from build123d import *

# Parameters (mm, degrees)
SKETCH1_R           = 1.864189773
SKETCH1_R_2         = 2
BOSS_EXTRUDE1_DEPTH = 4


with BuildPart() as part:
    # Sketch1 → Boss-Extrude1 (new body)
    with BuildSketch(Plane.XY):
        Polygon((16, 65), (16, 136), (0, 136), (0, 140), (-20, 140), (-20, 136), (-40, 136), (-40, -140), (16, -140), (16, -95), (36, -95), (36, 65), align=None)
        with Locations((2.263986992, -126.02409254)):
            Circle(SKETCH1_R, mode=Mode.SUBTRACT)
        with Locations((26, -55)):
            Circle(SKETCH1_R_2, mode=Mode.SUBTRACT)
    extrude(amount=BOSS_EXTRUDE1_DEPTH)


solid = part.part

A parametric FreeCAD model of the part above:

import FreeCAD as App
import Part
import Sketcher

V = App.Vector

doc = App.newDocument("Part")
body = doc.addObject("PartDesign::Body", "Body")

sketch1 = body.newObject("Sketcher::SketchObject", "Sketch")
sketch1.AttachmentSupport = (doc.getObject("XY_Plane"), [""])
sketch1.MapMode = "FlatFace"
sketch1.addGeometry(Part.LineSegment(V(16, 65, 0), V(16, 136, 0)), False)
sketch1.addGeometry(Part.LineSegment(V(16, 136, 0), V(0, 136, 0)), False)
sketch1.addGeometry(Part.LineSegment(V(0, 136, 0), V(0, 140, 0)), False)
sketch1.addGeometry(Part.LineSegment(V(0, 140, 0), V(-20, 140, 0)), False)
sketch1.addGeometry(Part.LineSegment(V(-20, 140, 0), V(-20, 136, 0)), False)
sketch1.addGeometry(Part.LineSegment(V(-20, 136, 0), V(-40, 136, 0)), False)
sketch1.addGeometry(Part.LineSegment(V(-40, 136, 0), V(-40, -140, 0)), False)
sketch1.addGeometry(Part.LineSegment(V(-40, -140, 0), V(16, -140, 0)), False)
sketch1.addGeometry(Part.LineSegment(V(16, -140, 0), V(16, -95, 0)), False)
sketch1.addGeometry(Part.LineSegment(V(16, -95, 0), V(36, -95, 0)), False)
sketch1.addGeometry(Part.LineSegment(V(36, -95, 0), V(36, 65, 0)), False)
sketch1.addGeometry(Part.LineSegment(V(36, 65, 0), V(16, 65, 0)), False)
sketch1.addGeometry(Part.Circle(V(2.3, -126, 0), V(0, 0, 1), 1.9), False)
sketch1.addGeometry(Part.Circle(V(26, -55, 0), V(0, 0, 1), 2), False)
sketch1.addConstraint(Sketcher.Constraint("Coincident", 0, 2, 1, 1))
sketch1.addConstraint(Sketcher.Constraint("Coincident", 1, 2, 2, 1))
sketch1.addConstraint(Sketcher.Constraint("Coincident", 2, 2, 3, 1))
sketch1.addConstraint(Sketcher.Constraint("Coincident", 3, 2, 4, 1))
sketch1.addConstraint(Sketcher.Constraint("Coincident", 4, 2, 5, 1))
sketch1.addConstraint(Sketcher.Constraint("Coincident", 5, 2, 6, 1))
sketch1.addConstraint(Sketcher.Constraint("Coincident", 6, 2, 7, 1))
sketch1.addConstraint(Sketcher.Constraint("Coincident", 7, 2, 8, 1))
sketch1.addConstraint(Sketcher.Constraint("Coincident", 8, 2, 9, 1))
sketch1.addConstraint(Sketcher.Constraint("Coincident", 9, 2, 10, 1))
sketch1.addConstraint(Sketcher.Constraint("Coincident", 10, 2, 11, 1))
sketch1.addConstraint(Sketcher.Constraint("Coincident", 11, 2, 0, 1))
sketch1.addConstraint(Sketcher.Constraint("Vertical", 0))
sketch1.addConstraint(Sketcher.Constraint("Horizontal", 1))
sketch1.addConstraint(Sketcher.Constraint("Vertical", 2))
sketch1.addConstraint(Sketcher.Constraint("Horizontal", 3))
sketch1.addConstraint(Sketcher.Constraint("Vertical", 4))
sketch1.addConstraint(Sketcher.Constraint("Horizontal", 5))
sketch1.addConstraint(Sketcher.Constraint("Vertical", 6))
sketch1.addConstraint(Sketcher.Constraint("Horizontal", 7))
sketch1.addConstraint(Sketcher.Constraint("Vertical", 8))
sketch1.addConstraint(Sketcher.Constraint("Horizontal", 9))
sketch1.addConstraint(Sketcher.Constraint("Vertical", 10))
sketch1.addConstraint(Sketcher.Constraint("Horizontal", 11))
sketch1.addConstraint(Sketcher.Constraint("PointOnObject", 1, 2, -2))
sketch1.addConstraint(Sketcher.Constraint("Horizontal", 1, 2, 4, 2))
sketch1.addConstraint(Sketcher.Constraint("Vertical", 0, 2, 7, 2))
sketch1.addConstraint(Sketcher.Constraint("Equal", 3, 5))
sketch1.addConstraint(Sketcher.Constraint("Equal", 5, 9))
sketch1.addConstraint(Sketcher.Constraint("Diameter", 13, 4.0))
sketch1.addConstraint(Sketcher.Constraint("DistanceX", 1, 2, 1, 1, 16.0))
sketch1.addConstraint(Sketcher.Constraint("DistanceX", 3, 2, 3, 1, 20.0))
sketch1.addConstraint(Sketcher.Constraint("DistanceY", 0, 1, 0, 2, 71.0))
sketch1.addConstraint(Sketcher.Constraint("DistanceY", 2, 1, 2, 2, 4.0))
sketch1.addConstraint(Sketcher.Constraint("DistanceY", 6, 2, 6, 1, 276.0))
sketch1.addConstraint(Sketcher.Constraint("DistanceY", 8, 1, 8, 2, 45.0))
sketch1.addConstraint(Sketcher.Constraint("DistanceX", -1, 1, 13, 3, 26.0))
sketch1.addConstraint(Sketcher.Constraint("DistanceY", 13, 3, -1, 1, 55.0))
sketch1.addConstraint(Sketcher.Constraint("DistanceY", -1, 1, 0, 2, 136.0))
sketch1.addConstraint(Sketcher.Constraint("Diameter", 12, 3.72838))
sketch1.addConstraint(Sketcher.Constraint("DistanceX", -1, 1, 12, 3, 2.263987))
sketch1.addConstraint(Sketcher.Constraint("DistanceY", 12, 3, -1, 1, 126.024093))
pad1 = body.newObject("PartDesign::Pad", "Pad")
pad1.Profile = sketch1
pad1.Length = 4

doc.recompute()
